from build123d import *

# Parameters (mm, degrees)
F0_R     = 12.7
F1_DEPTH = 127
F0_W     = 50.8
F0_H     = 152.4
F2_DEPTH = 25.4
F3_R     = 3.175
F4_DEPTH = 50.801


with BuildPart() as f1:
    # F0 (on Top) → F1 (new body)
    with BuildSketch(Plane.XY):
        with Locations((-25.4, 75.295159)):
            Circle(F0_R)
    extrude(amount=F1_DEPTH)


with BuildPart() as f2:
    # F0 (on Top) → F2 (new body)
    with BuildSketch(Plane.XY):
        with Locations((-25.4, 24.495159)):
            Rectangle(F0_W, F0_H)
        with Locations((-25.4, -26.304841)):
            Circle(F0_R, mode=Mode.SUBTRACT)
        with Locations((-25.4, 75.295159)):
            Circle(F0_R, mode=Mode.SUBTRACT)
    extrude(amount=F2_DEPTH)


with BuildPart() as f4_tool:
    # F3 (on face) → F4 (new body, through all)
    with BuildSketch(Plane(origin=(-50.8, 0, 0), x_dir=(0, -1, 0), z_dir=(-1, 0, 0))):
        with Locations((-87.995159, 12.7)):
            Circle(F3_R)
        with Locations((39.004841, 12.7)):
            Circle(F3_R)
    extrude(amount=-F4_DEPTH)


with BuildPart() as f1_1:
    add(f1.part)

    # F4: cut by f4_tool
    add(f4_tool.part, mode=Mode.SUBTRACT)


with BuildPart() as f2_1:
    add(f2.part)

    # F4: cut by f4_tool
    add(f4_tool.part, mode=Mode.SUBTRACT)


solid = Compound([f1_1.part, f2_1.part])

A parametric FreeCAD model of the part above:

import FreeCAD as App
import Part
import Sketcher
from FreeCAD import Vector
Q = App.Units.Quantity

doc = App.newDocument("Part")
body = doc.addObject("PartDesign::Body", "Body")

# Sketch on XY plane
sketch1 = body.newObject("Sketcher::SketchObject", "Sketch")
sketch1.AttachmentSupport = (doc.getObject("XY_Plane"), [""])
sketch1.MapMode = "FlatFace"
sketch1.addGeometry(Part.Circle(Vector(-25.4, 75.295159, 0), Vector(0, 0, 1), 12.7), False)
sketch1.addConstraint([
    Sketcher.Constraint("Diameter", 0, Q("1 in")),
    Sketcher.Constraint("DistanceX", 0, 3, -1, 1, Q("1 in")),
    Sketcher.Constraint("DistanceY", -1, 1, 0, 3, 75.295159),
])
pad1 = body.newObject("PartDesign::Pad", "Pad")
pad1.Profile = sketch1
pad1.Length = Q("5 in")
body2 = doc.addObject("PartDesign::Body", "Body001")

# Sketch on XY plane
sketch2 = body2.newObject("Sketcher::SketchObject", "Sketch001")
sketch2.AttachmentSupport = (doc.getObject("XY_Plane001"), [""])
sketch2.MapMode = "FlatFace"
sketch2.addGeometry([
    Part.LineSegment(Vector(-50.8, 100.695159, 0), Vector(-50.8, -51.704841, 0)),  # 0
    Part.LineSegment(Vector(-50.8, -51.704841, 0), Vector(0, -51.704841, 0)),  # 1
    Part.LineSegment(Vector(0, -51.704841, 0), Vector(0, 100.695159, 0)),  # 2
    Part.LineSegment(Vector(0, 100.695159, 0), Vector(-50.8, 100.695159, 0)),  # 3
    Part.Circle(Vector(-25.4, -26.304841, 0), Vector(0, 0, 1), 12.7),  # 4
    Part.Circle(Vector(-25.4, 75.295159, 0), Vector(0, 0, 1), 12.7),  # 5
], False)
sketch2.addConstraint([
    Sketcher.Constraint("Coincident", 0, 2, 1, 1),
    Sketcher.Constraint("Coincident", 1, 2, 2, 1),
    Sketcher.Constraint("Coincident", 2, 2, 3, 1),
    Sketcher.Constraint("Coincident", 3, 2, 0, 1),
    Sketcher.Constraint("Vertical", 0),
    Sketcher.Constraint("Horizontal", 1),
    Sketcher.Constraint("Vertical", 2),
    Sketcher.Constraint("Horizontal", 3),
    Sketcher.Constraint("Equal", 4, 5),
    Sketcher.Constraint("PointOnObject", 1, 2, -2),
    Sketcher.Constraint("Vertical", 4, 3, 5, 3),
    Sketcher.Constraint("Diameter", 4, Q("1 in")),
    Sketcher.Constraint("DistanceX", 1, 1, 1, 2, Q("2 in")),
    Sketcher.Constraint("DistanceY", 0, 2, 0, 1, Q("6 in")),
    Sketcher.Constraint("DistanceX", 4, 3, -1, 1, Q("1 in")),
    Sketcher.Constraint("DistanceY", 4, 3, 5, 3, Q("4 in")),
    Sketcher.Constraint("DistanceY", 0, 2, 4, 3, Q("1 in")),
    Sketcher.Constraint("DistanceY", 4, 3, -1, 1, 26.304841),
])
pad2 = body2.newObject("PartDesign::Pad", "Pad001")
pad2.Profile = sketch2
pad2.Length = Q("1 in")
body3 = doc.addObject("PartDesign::Body", "Body002")
body3.AllowCompound = True

# Sketch on YZ plane
sketch3 = body3.newObject("Sketcher::SketchObject", "Sketch002")
sketch3.AttachmentSupport = (doc.getObject("YZ_Plane002"), [""])
sketch3.MapMode = "FlatFace"
sketch3.AttachmentOffset = App.Placement(Vector(0, 0, -2 * 25.4), App.Rotation())
sketch3.addGeometry([
    Part.Circle(Vector(87.995159, 12.7, 0), Vector(0, 0, 1), 3.175),
    Part.Circle(Vector(-39.004841, 12.7, 0), Vector(0, 0, 1), 3.175),
], False)
sketch3.addConstraint([
    Sketcher.Constraint("Equal", 0, 1),
    Sketcher.Constraint("Horizontal", 0, 3, 1, 3),
    Sketcher.Constraint("Diameter", 0, Q("0.25 in")),
    Sketcher.Constraint("DistanceX", 1, 3, 0, 3, Q("5 in")),
    Sketcher.Constraint("DistanceY", -1, 1, 0, 3, Q("0.5 in")),
    Sketcher.Constraint("DistanceX", -1, 1, 0, 3, 87.995159),
])
pad3 = body3.newObject("PartDesign::Pad", "Pad002")
pad3.Profile = sketch3
pad3.Length = 50.801
doc.recompute()

body4 = doc.addObject("PartDesign::Body", "Body003")
body4.BaseFeature = body3
boolean = body.newObject("PartDesign::Boolean", "Boolean")
boolean.Type = "Cut"
boolean.addObjects([body4])
doc.recompute()

boolean2 = body2.newObject("PartDesign::Boolean", "Boolean001")
boolean2.Type = "Cut"
boolean2.addObjects([body3])

doc.recompute()
